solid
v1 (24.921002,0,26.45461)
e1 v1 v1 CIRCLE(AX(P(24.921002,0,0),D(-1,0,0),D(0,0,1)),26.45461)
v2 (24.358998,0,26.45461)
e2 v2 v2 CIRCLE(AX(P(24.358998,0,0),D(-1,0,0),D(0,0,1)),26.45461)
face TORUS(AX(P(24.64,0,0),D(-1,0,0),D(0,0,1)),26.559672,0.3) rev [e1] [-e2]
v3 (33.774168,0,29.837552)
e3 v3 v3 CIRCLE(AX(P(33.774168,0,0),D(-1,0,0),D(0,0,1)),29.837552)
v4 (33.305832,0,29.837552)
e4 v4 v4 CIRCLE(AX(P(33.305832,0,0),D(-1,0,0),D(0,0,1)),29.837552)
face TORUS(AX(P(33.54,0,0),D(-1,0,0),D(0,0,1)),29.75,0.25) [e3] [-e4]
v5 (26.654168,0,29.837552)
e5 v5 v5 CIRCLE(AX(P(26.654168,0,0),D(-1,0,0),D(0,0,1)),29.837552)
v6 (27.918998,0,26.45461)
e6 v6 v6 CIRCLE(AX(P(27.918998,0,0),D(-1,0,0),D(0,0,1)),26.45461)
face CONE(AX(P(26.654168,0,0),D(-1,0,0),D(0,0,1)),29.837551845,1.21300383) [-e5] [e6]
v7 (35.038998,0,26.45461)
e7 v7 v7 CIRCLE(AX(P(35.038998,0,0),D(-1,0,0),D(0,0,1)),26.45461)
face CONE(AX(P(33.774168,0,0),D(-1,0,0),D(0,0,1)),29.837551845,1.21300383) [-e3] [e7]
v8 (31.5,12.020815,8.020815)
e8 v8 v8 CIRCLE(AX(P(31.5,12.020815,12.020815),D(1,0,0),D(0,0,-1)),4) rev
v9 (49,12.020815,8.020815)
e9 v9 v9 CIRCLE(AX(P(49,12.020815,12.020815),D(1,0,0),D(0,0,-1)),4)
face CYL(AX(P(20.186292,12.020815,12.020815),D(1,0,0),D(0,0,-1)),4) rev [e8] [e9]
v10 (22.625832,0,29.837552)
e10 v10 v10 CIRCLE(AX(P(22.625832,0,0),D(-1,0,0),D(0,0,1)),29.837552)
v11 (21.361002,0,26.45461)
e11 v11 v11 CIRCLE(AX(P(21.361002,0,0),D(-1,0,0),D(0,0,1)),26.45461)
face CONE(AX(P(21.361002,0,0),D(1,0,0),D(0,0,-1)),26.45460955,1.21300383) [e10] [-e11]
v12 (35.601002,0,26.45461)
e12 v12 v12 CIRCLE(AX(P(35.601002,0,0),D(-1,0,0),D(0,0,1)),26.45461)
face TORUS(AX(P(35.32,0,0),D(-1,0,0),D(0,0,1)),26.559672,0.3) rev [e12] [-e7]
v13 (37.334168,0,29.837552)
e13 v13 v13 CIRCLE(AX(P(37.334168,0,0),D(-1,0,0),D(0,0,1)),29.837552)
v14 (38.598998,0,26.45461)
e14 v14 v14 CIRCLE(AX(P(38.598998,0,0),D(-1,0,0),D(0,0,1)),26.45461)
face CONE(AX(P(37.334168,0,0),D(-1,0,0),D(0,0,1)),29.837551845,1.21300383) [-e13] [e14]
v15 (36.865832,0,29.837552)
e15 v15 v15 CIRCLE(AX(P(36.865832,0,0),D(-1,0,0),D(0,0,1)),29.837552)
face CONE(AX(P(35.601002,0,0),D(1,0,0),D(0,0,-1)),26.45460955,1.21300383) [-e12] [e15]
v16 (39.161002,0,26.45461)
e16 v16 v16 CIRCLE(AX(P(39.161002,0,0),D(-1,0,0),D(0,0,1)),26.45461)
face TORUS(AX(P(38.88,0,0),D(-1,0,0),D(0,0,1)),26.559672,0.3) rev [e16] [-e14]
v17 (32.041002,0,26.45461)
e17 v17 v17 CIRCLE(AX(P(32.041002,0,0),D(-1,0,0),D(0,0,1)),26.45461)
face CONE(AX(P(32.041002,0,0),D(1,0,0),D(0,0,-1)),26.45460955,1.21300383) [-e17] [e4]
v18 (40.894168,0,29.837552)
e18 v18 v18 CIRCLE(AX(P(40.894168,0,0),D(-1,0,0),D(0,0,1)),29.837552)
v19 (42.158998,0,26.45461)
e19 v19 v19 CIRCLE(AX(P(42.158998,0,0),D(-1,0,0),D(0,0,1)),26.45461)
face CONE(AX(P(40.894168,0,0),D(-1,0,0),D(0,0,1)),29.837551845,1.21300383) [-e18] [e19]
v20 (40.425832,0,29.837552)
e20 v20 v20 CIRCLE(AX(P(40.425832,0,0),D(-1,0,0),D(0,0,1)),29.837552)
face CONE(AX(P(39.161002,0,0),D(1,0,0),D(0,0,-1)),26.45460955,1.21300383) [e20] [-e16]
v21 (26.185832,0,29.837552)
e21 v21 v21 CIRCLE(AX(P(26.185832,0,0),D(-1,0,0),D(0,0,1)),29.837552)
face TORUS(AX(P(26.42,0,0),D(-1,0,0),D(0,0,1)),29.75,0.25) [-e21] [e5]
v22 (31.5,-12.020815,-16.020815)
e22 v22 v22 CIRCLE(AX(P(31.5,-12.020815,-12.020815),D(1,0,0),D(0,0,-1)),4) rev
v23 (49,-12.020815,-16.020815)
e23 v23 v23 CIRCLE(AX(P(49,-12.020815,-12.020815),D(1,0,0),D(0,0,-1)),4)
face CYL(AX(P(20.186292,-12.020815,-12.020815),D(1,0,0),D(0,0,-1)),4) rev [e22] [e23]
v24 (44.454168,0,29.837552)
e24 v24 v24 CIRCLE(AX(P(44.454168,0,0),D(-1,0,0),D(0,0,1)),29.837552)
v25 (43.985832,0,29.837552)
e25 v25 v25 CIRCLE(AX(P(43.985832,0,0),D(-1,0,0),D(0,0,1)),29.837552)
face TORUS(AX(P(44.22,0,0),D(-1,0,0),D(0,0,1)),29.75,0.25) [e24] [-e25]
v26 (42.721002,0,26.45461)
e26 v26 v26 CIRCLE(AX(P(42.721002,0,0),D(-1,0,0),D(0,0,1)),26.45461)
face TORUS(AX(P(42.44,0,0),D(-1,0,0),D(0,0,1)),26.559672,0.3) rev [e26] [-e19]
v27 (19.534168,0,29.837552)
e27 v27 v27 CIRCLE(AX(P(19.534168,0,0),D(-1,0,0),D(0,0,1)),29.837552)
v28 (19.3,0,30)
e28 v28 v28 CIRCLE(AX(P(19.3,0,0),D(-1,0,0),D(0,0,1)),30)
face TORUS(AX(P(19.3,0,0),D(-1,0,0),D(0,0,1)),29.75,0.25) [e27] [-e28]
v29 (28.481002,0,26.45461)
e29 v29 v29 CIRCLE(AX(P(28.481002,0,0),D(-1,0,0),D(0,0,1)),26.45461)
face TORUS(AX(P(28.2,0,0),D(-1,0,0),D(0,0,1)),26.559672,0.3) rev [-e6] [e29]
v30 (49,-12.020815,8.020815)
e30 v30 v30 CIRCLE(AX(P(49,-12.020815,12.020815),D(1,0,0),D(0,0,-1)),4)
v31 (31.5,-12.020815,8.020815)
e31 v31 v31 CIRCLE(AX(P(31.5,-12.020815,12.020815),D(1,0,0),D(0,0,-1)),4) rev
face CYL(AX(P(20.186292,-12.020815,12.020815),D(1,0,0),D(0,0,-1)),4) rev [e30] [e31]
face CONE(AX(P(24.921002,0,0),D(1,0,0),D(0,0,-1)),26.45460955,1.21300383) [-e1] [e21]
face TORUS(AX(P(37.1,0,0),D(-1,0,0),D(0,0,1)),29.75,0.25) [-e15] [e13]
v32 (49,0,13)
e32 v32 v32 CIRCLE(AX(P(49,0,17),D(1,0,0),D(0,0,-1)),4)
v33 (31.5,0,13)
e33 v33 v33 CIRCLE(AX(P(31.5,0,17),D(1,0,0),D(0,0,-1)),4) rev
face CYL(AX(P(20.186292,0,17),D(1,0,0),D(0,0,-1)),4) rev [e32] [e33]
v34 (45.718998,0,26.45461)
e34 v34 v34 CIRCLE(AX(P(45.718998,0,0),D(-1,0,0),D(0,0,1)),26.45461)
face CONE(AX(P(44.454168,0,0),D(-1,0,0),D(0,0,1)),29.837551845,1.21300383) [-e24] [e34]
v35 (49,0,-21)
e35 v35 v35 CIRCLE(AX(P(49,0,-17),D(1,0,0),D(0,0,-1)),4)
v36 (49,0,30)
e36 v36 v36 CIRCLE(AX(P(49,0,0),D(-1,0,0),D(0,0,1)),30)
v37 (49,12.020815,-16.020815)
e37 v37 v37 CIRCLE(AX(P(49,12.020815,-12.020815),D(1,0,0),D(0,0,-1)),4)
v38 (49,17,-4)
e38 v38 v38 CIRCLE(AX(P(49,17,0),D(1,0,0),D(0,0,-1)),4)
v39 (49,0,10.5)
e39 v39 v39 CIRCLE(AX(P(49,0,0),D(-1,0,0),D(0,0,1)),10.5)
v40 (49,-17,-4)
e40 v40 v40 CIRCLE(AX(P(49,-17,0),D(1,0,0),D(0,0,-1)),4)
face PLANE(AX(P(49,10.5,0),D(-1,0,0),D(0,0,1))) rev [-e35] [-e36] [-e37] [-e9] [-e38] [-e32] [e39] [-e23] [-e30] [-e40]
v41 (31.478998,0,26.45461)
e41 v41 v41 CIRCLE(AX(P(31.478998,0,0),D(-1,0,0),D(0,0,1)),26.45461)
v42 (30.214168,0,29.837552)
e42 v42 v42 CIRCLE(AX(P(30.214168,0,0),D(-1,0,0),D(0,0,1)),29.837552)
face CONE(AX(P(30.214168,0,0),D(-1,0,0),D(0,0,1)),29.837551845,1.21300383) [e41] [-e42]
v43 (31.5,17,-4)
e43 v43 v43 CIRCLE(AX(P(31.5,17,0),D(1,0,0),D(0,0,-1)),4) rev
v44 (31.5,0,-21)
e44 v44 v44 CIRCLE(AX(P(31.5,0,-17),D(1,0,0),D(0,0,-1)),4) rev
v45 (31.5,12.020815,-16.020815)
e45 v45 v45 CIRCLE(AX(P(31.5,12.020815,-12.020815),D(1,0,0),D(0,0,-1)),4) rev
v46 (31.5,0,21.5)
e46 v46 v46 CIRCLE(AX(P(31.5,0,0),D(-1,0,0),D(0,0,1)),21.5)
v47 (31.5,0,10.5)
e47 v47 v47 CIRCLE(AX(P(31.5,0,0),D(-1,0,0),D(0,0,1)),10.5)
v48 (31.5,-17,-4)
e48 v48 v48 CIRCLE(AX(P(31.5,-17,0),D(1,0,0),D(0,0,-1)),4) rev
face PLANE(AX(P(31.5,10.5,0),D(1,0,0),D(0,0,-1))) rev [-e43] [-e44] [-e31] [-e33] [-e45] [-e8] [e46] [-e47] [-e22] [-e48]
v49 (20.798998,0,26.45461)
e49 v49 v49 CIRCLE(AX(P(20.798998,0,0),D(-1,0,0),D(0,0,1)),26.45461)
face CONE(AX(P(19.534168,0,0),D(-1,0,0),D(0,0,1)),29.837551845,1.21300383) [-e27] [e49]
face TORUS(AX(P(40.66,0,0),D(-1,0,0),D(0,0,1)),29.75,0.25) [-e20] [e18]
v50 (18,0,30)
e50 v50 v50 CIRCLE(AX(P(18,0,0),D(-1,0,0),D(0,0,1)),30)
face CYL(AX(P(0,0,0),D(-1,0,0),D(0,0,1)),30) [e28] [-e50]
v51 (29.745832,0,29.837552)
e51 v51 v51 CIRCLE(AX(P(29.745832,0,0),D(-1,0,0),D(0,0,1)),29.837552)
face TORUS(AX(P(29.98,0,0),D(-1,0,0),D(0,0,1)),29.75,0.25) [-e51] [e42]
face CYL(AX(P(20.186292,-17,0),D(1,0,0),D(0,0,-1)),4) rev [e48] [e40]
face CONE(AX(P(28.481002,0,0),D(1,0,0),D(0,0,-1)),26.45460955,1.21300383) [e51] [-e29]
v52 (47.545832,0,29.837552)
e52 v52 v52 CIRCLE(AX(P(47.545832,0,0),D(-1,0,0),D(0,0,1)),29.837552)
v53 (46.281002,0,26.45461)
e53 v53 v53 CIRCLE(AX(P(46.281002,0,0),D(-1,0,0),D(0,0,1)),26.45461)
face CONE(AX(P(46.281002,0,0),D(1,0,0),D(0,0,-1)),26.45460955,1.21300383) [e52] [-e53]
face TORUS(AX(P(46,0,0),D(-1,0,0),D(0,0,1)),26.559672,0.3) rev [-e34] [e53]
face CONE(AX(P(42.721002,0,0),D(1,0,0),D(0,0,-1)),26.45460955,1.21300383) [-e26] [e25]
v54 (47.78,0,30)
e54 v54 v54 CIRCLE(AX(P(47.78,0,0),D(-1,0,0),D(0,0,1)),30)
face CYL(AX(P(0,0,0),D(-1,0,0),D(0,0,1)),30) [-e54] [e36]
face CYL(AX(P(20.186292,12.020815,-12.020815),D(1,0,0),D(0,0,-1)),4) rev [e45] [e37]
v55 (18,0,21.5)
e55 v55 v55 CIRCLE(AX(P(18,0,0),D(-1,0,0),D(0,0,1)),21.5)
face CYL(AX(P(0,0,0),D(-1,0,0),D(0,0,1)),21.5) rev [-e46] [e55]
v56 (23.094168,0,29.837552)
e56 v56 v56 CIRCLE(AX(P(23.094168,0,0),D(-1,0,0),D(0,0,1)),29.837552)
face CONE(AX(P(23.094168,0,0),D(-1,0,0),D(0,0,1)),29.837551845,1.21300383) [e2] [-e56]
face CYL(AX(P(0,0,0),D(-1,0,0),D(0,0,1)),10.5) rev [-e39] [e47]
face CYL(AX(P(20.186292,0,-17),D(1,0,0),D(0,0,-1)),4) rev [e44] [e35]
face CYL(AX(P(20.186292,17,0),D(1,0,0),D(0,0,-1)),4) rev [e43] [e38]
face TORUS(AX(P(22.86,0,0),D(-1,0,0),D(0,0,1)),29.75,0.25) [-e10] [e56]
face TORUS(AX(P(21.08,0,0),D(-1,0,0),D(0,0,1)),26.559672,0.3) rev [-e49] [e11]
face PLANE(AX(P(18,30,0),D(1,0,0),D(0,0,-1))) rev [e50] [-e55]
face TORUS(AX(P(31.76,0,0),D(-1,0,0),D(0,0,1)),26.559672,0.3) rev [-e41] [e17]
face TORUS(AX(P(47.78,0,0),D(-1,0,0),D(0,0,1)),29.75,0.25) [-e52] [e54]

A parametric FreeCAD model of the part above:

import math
import FreeCAD as App
import Part
import Sketcher
Q = App.Units.Quantity

doc = App.newDocument("Part")
body = doc.addObject("PartDesign::Body", "Body")

# Sketch on XY plane
sketch1 = body.newObject("Sketcher::SketchObject", "Sketch")
sketch1.AttachmentSupport = (doc.getObject("XY_Plane"), [""])
sketch1.MapMode = "FlatFace"
sketch1.addGeometry([
    Part.LineSegment(App.Vector(49, 10, 0), App.Vector(49, 30, 0)),  # 0
    Part.LineSegment(App.Vector(49, 30, 0), App.Vector(18, 30, 0)),  # 1
    Part.LineSegment(App.Vector(18, 30, 0), App.Vector(18, 22, 0)),  # 2
    Part.LineSegment(App.Vector(18, 22, 0), App.Vector(32, 22, 0)),  # 3
    Part.LineSegment(App.Vector(32, 22, 0), App.Vector(32, 10, 0)),  # 4
    Part.LineSegment(App.Vector(32, 10, 0), App.Vector(49, 10, 0)),  # 5
], False)
sketch1.addConstraint([
    Sketcher.Constraint("Coincident", 0, 2, 1, 1),
    Sketcher.Constraint("Coincident", 1, 2, 2, 1),
    Sketcher.Constraint("Coincident", 2, 2, 3, 1),
    Sketcher.Constraint("Coincident", 3, 2, 4, 1),
    Sketcher.Constraint("Coincident", 4, 2, 5, 1),
    Sketcher.Constraint("Coincident", 5, 2, 0, 1),
    Sketcher.Constraint("Vertical", 0),
    Sketcher.Constraint("Horizontal", 1),
    Sketcher.Constraint("Vertical", 2),
    Sketcher.Constraint("Horizontal", 3),
    Sketcher.Constraint("Vertical", 4),
    Sketcher.Constraint("Horizontal", 5),
    Sketcher.Constraint("DistanceX", 1, 2, 1, 1, 31.0),
    Sketcher.Constraint("DistanceY", 4, 2, 4, 1, 11.0),
    Sketcher.Constraint("DistanceX", 3, 1, 3, 2, 13.5),
    Sketcher.Constraint("DistanceY", 0, 1, 0, 2, 19.5),
    Sketcher.Constraint("DistanceX", -1, 1, 0, 2, 49.0),
    Sketcher.Constraint("DistanceY", -1, 1, 0, 2, 30.0),
])
revolution = body.newObject("PartDesign::Revolution", "Revolution")
revolution.Profile = sketch1
revolution.ReferenceAxis = (sketch1, ["H_Axis"])
revolution.Angle = 360

# Sketch on XY plane
sketch2 = body.newObject("Sketcher::SketchObject", "Sketch001")
sketch2.AttachmentSupport = (doc.getObject("XY_Plane"), [""])
sketch2.MapMode = "FlatFace"
sketch2.addGeometry([
    Part.LineSegment(App.Vector(46.28, 26.45, 0), App.Vector(47.55, 29.84, 0)),  # 0
    Part.ArcOfCircle(Part.Circle(App.Vector(47.78, 29.75, 0), App.Vector(0, 0, 1), 0.25), math.radians(90), math.radians(160)),  # 1
    Part.LineSegment(App.Vector(47.78, 30, 0), App.Vector(44.22, 30, 0)),  # 2
    Part.ArcOfCircle(Part.Circle(App.Vector(44.22, 29.75, 0), App.Vector(0, 0, 1), 0.25), math.radians(20), math.radians(90)),  # 3
    Part.LineSegment(App.Vector(44.45, 29.84, 0), App.Vector(45.72, 26.45, 0)),  # 4
    Part.ArcOfCircle(Part.Circle(App.Vector(46, 26.56, 0), App.Vector(0, 0, 1), 0.3), math.radians(-160), math.radians(-20)),  # 5
], False)
sketch2.addConstraint([
    Sketcher.Constraint("Tangent", 0, 2, 1, 2),
    Sketcher.Constraint("Tangent", 1, 1, 2, 1),
    Sketcher.Constraint("Tangent", 2, 2, 3, 2),
    Sketcher.Constraint("Tangent", 3, 1, 4, 1),
    Sketcher.Constraint("Tangent", 4, 2, 5, 1),
    Sketcher.Constraint("Tangent", 5, 2, 0, 1),
    Sketcher.Constraint("Horizontal", 2),
    Sketcher.Constraint("Equal", 1, 3),
    Sketcher.Constraint("Horizontal", 0, 2, 3, 1),
    Sketcher.Constraint("Radius", 5, 0.3),
    Sketcher.Constraint("Radius", 1, 0.25),
    Sketcher.Constraint("DistanceX", -1, 1, 5, 3, 46.0),
    Sketcher.Constraint("DistanceY", -1, 1, 1, 1, 30.0),
    Sketcher.Constraint("Angle", 0, Q("69.5 deg")),
    Sketcher.Constraint("DistanceX", 2, 2, 2, 1, 3.56),
])
groove = body.newObject("PartDesign::Groove", "Groove")
groove.Profile = sketch2
groove.ReferenceAxis = (sketch2, ["H_Axis"])
groove.Angle = 360
doc.recompute()

linearpattern = body.newObject("PartDesign::LinearPattern", "LinearPattern")
linearpattern.Originals = [groove]
linearpattern.Direction = (doc.getObject("X_Axis"), [""])
linearpattern.Mode = "offset"
linearpattern.Offset = 3.56
linearpattern.Occurrences = 8
linearpattern.Reversed = True
body.Tip = linearpattern

# Sketch on YZ plane
sketch3 = body.newObject("Sketcher::SketchObject", "Sketch002")
sketch3.AttachmentSupport = (doc.getObject("YZ_Plane"), [""])
sketch3.MapMode = "FlatFace"
sketch3.AttachmentOffset = App.Placement(App.Vector(0, 0, 49), App.Rotation())
sketch3.addGeometry([
    Part.Circle(App.Vector(17, 0, 0), App.Vector(0, 0, 1), 4),  # 0
    Part.Circle(App.Vector(12, -12, 0), App.Vector(0, 0, 1), 4),  # 1
    Part.Circle(App.Vector(0, -17, 0), App.Vector(0, 0, 1), 4),  # 2
    Part.Circle(App.Vector(-12, -12, 0), App.Vector(0, 0, 1), 4),  # 3
    Part.Circle(App.Vector(-17, 0, 0), App.Vector(0, 0, 1), 4),  # 4
    Part.Circle(App.Vector(-12, 12, 0), App.Vector(0, 0, 1), 4),  # 5
    Part.Circle(App.Vector(0, 17, 0), App.Vector(0, 0, 1), 4),  # 6
    Part.Circle(App.Vector(12, 12, 0), App.Vector(0, 0, 1), 4),  # 7
], False)
sketch3.addConstraint([
    Sketcher.Constraint("Equal", 0, 1),
    Sketcher.Constraint("Equal", 1, 2),
    Sketcher.Constraint("Equal", 2, 3),
    Sketcher.Constraint("Equal", 3, 4),
    Sketcher.Constraint("Equal", 4, 5),
    Sketcher.Constraint("Equal", 5, 6),
    Sketcher.Constraint("Equal", 6, 7),
    Sketcher.Constraint("Symmetric", 0, 3, 4, 3, -1, 1),
    Sketcher.Constraint("Symmetric", 1, 3, 5, 3, -1, 1),
    Sketcher.Constraint("Symmetric", 2, 3, 6, 3, -1, 1),
    Sketcher.Constraint("Symmetric", 3, 3, 7, 3, -1, 1),
    Sketcher.Constraint("Symmetric", 1, 3, 3, 3, -2),
    Sketcher.Constraint("PointOnObject", 0, 3, -1),
    Sketcher.Constraint("PointOnObject", 2, 3, -2),
    Sketcher.Constraint("Diameter", 0, 8.0),
    Sketcher.Constraint("DistanceX", -1, 1, 0, 3, 17.0),
    Sketcher.Constraint("DistanceY", 2, 3, -1, 1, 17.0),
    Sketcher.Constraint("DistanceX", 3, 3, 1, 3, 24.041631),
    Sketcher.Constraint("DistanceY", 3, 3, 5, 3, 24.041631),
])
pocket1 = body.newObject("PartDesign::Pocket", "Pocket")
pocket1.Profile = sketch3
pocket1.Length = 17.5

doc.recompute()
